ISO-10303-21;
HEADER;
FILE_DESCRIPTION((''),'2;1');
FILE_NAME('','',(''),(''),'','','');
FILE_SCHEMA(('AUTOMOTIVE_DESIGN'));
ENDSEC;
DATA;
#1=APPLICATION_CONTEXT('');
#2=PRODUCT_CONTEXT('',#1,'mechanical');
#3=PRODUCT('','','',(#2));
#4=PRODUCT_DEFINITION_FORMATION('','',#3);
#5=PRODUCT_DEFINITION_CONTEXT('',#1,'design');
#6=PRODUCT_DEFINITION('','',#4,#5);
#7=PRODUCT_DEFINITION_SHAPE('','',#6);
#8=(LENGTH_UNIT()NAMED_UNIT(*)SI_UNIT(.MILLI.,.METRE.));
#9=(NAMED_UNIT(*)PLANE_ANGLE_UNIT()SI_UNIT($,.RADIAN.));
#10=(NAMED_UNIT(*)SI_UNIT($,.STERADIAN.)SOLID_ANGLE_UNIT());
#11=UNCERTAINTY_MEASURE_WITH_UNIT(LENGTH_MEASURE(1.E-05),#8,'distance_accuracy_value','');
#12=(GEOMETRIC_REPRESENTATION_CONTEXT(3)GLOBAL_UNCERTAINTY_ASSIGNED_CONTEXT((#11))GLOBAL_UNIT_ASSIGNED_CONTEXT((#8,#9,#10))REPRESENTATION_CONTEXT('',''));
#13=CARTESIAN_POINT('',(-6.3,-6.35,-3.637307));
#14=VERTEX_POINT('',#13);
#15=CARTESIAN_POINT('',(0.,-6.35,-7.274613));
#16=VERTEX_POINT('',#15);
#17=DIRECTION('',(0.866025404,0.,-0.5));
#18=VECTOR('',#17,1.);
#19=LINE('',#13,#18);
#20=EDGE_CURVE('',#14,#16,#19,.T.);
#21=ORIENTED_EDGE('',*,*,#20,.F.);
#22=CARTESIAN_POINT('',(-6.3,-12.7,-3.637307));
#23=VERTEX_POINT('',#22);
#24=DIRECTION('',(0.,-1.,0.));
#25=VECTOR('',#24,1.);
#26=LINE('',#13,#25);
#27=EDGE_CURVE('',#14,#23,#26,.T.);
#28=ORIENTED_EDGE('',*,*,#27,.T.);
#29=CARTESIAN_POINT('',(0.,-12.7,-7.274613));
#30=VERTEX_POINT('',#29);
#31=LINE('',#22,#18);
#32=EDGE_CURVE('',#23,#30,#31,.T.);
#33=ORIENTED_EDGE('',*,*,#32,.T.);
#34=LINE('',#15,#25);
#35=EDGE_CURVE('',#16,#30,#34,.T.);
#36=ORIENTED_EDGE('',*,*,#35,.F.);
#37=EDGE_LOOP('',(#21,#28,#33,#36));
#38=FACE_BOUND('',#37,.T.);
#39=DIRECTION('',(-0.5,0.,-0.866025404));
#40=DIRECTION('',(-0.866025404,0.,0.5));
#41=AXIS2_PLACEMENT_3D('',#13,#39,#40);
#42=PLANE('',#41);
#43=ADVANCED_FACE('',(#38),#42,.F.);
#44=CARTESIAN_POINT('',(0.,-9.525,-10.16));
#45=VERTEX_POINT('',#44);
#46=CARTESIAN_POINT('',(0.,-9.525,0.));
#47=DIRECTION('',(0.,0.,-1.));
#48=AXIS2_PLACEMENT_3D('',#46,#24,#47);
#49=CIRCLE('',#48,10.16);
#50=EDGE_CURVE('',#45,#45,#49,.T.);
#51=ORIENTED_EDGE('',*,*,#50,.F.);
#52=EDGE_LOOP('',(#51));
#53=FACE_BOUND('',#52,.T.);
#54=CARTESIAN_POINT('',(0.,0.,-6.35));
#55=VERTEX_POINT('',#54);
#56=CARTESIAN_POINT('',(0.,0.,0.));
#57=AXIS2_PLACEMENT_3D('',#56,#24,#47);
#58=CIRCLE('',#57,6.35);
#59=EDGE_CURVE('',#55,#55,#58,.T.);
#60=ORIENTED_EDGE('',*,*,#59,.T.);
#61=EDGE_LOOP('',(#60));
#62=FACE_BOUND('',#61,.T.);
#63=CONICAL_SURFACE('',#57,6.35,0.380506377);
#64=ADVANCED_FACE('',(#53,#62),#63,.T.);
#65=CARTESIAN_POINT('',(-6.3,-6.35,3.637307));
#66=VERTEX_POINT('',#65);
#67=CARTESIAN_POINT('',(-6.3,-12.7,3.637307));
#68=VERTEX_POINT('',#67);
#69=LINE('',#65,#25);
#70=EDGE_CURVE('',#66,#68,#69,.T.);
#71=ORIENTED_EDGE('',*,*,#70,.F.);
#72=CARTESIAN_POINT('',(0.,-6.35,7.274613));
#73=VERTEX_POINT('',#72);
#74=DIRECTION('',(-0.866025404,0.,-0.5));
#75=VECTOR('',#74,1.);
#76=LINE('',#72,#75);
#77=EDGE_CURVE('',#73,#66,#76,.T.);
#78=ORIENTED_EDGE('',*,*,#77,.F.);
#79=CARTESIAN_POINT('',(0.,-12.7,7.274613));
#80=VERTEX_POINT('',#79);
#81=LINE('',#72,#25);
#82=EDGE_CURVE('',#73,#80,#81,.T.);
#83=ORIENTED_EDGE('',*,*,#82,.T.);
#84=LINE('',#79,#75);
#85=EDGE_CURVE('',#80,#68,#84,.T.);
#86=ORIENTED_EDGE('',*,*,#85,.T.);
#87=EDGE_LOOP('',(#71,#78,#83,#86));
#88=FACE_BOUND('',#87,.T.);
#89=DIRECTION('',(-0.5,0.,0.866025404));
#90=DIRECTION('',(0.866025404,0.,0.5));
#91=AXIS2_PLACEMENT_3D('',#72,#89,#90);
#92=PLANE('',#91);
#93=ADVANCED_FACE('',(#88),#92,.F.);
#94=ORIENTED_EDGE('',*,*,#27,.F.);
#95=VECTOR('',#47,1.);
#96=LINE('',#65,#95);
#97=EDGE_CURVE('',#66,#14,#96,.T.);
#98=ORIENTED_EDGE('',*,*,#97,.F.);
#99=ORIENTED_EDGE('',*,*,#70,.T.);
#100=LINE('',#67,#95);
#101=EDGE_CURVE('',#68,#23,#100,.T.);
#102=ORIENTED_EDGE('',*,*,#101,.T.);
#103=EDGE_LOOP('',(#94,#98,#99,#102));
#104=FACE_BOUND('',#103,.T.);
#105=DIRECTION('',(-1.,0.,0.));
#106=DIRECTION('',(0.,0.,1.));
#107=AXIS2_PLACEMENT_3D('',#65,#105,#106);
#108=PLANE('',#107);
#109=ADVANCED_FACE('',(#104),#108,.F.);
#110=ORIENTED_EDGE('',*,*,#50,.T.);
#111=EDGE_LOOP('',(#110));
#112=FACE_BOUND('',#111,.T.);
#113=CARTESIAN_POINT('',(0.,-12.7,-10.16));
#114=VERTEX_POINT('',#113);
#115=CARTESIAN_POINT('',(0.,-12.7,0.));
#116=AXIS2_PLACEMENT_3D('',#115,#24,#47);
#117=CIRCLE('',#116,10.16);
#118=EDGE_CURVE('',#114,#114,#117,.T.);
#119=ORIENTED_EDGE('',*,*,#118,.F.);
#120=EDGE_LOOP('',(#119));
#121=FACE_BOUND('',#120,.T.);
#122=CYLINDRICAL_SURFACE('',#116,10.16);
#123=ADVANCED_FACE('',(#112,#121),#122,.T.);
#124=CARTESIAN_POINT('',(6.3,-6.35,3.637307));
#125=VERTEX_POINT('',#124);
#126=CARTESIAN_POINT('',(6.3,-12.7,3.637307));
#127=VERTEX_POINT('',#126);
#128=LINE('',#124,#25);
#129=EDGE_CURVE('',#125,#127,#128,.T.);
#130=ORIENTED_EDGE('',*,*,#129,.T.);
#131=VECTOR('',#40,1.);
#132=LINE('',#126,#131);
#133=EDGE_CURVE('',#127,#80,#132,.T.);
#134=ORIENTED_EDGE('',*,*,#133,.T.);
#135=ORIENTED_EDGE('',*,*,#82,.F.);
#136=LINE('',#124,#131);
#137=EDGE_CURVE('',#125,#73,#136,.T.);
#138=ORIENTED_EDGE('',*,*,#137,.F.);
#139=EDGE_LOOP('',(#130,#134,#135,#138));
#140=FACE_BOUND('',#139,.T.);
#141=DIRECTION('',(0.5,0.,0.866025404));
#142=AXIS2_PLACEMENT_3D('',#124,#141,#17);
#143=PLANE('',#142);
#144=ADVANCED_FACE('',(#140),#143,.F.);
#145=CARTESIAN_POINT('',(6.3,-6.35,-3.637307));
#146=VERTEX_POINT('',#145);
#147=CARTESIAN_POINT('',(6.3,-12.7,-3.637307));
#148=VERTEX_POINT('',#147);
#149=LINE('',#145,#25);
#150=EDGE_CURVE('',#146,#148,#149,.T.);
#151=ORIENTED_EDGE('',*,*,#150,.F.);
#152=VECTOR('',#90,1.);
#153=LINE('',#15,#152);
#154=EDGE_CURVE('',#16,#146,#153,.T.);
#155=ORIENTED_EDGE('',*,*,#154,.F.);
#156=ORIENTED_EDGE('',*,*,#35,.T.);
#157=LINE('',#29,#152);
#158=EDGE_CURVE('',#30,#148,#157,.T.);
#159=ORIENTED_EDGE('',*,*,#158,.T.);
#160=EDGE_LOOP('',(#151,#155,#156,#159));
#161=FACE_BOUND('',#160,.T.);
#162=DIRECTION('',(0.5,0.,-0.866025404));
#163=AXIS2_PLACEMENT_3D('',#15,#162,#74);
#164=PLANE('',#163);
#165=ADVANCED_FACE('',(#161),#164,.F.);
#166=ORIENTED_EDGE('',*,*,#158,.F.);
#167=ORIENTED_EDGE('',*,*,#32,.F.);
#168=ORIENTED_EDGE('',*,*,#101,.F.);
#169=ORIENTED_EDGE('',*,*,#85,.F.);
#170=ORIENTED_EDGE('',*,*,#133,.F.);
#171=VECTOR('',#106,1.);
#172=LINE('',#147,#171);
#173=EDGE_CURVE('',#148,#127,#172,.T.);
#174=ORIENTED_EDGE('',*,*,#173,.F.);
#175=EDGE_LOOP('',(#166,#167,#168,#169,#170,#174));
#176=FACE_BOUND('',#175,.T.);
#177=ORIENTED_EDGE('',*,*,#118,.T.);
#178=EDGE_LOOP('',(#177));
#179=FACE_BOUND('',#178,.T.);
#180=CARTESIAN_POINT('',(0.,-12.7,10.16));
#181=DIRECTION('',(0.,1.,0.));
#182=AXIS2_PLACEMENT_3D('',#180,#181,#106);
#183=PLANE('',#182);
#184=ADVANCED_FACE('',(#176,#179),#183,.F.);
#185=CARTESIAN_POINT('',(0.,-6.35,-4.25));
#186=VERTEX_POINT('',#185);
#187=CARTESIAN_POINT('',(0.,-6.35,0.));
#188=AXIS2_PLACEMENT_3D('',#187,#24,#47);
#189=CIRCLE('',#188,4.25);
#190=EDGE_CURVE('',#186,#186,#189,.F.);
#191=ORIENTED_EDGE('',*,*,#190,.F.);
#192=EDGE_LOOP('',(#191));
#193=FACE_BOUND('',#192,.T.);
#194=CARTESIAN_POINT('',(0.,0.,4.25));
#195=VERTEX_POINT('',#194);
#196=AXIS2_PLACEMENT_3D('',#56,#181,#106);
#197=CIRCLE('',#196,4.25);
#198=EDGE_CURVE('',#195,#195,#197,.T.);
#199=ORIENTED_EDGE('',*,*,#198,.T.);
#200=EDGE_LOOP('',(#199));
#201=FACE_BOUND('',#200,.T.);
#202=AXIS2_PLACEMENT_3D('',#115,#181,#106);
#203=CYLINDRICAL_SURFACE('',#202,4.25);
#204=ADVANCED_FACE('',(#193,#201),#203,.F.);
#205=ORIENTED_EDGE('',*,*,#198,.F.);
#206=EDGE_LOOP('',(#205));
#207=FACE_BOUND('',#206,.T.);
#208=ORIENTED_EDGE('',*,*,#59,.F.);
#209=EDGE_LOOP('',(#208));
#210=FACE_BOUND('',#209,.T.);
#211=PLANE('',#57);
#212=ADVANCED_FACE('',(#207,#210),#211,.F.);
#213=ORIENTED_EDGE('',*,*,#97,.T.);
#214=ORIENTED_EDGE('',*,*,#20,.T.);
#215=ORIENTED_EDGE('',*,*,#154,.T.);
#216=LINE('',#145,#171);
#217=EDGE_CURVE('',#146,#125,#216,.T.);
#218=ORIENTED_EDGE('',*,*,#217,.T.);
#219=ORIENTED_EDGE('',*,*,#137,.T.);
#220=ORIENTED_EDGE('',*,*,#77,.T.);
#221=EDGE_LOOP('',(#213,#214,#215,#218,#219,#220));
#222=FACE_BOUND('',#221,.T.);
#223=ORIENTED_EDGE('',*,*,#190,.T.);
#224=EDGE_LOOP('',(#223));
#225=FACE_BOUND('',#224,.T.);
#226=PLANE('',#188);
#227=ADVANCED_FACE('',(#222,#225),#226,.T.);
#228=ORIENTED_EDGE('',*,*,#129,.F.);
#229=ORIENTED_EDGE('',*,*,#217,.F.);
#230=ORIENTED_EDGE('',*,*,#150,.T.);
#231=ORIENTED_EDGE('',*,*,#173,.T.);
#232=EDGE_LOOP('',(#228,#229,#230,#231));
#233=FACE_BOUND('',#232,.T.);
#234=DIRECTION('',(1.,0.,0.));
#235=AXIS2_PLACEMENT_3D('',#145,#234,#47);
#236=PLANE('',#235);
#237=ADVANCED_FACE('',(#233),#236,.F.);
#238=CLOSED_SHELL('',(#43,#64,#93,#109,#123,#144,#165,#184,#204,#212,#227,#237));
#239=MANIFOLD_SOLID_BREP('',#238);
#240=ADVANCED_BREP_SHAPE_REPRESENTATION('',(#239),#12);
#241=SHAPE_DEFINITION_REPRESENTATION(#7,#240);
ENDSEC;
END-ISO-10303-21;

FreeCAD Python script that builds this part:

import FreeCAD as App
import Part
import Sketcher
Q = App.Units.Quantity

doc = App.newDocument("Part")
params = doc.addObject("Spreadsheet::Sheet", "Params")
for row, (alias, value) in enumerate([
    ("sketch1_width", "0.5 in"),
    ("sketch1_height", "0.4 in"),
    ("sketch1_height2", "0.25 in"),
    ("sketch1_width2", "0.125 in"),
    ("revolution_angle", "360 deg"),
    ("pocket2_length", "0.25 in"),
], start=1):
    params.set(f"A{row}", alias)
    params.set(f"B{row}", "=" + value)
    params.setAlias(f"B{row}", alias)

body = doc.addObject("PartDesign::Body", "Body")

sketch1 = body.newObject("Sketcher::SketchObject", "Sketch")
sketch1.AttachmentSupport = (doc.getObject("YZ_Plane"), [""])
sketch1.MapMode = "FlatFace"
sketch1.addGeometry(Part.LineSegment(App.Vector(0, 0, 0), App.Vector(0, 6.3, 0)), False)
sketch1.addGeometry(Part.LineSegment(App.Vector(0, 6.3, 0), App.Vector(-9.5, 10.2, 0)), False)
sketch1.addGeometry(Part.LineSegment(App.Vector(-9.5, 10.2, 0), App.Vector(-12.7, 10.2, 0)), False)
sketch1.addGeometry(Part.LineSegment(App.Vector(-12.7, 10.2, 0), App.Vector(-12.7, 0, 0)), False)
sketch1.addGeometry(Part.LineSegment(App.Vector(-12.7, 0, 0), App.Vector(0, 0, 0)), False)
sketch1.addConstraint(Sketcher.Constraint("Coincident", 0, 2, 1, 1))
sketch1.addConstraint(Sketcher.Constraint("Coincident", 1, 2, 2, 1))
sketch1.addConstraint(Sketcher.Constraint("Coincident", 2, 2, 3, 1))
sketch1.addConstraint(Sketcher.Constraint("Coincident", 3, 2, 4, 1))
sketch1.addConstraint(Sketcher.Constraint("Coincident", 4, 2, 0, 1))
sketch1.addConstraint(Sketcher.Constraint("Vertical", 0))
sketch1.addConstraint(Sketcher.Constraint("Horizontal", 2))
sketch1.addConstraint(Sketcher.Constraint("Vertical", 3))
sketch1.addConstraint(Sketcher.Constraint("Horizontal", 4))
sketch1.addConstraint(Sketcher.Constraint("Coincident", 4, 2, -1, 1))
sketch1.addConstraint(Sketcher.Constraint("DistanceX", 4, 1, 4, 2, Q("0.5 in")))
sketch1.addConstraint(Sketcher.Constraint("DistanceY", 3, 2, 3, 1, Q("0.4 in")))
sketch1.addConstraint(Sketcher.Constraint("DistanceY", 0, 1, 0, 2, Q("0.25 in")))
sketch1.addConstraint(Sketcher.Constraint("DistanceX", 2, 2, 2, 1, Q("0.125 in")))
sketch1.setExpression("Constraints[10]", "Params.sketch1_width")
sketch1.setExpression("Constraints[11]", "Params.sketch1_height")
sketch1.setExpression("Constraints[12]", "Params.sketch1_height2")
sketch1.setExpression("Constraints[13]", "Params.sketch1_width2")
revolution = body.newObject("PartDesign::Revolution", "Revolution")
revolution.Profile = sketch1
revolution.ReferenceAxis = (sketch1, ["H_Axis"])
revolution.setExpression("Angle", "Params.revolution_angle")

sketch2 = body.newObject("Sketcher::SketchObject", "Sketch001")
sketch2.AttachmentSupport = (doc.getObject("XZ_Plane"), [""])
sketch2.MapMode = "FlatFace"
sketch2.addGeometry(Part.Circle(App.Vector(0, 0, 0), App.Vector(0, 0, 1), 4.2), False)
sketch2.addConstraint(Sketcher.Constraint("Coincident", 0, 3, -1, 1))
sketch2.addConstraint(Sketcher.Constraint("Diameter", 0, Q("8.5 mm")))
pocket1 = body.newObject("PartDesign::Pocket", "Pocket")
pocket1.Profile = sketch2
pocket1.Type = "ThroughAll"
pocket1.Reversed = True

sketch3 = body.newObject("Sketcher::SketchObject", "Sketch002")
sketch3.AttachmentSupport = (doc.getObject("XZ_Plane"), [""])
sketch3.MapMode = "FlatFace"
sketch3.AttachmentOffset = App.Placement(App.Vector(0, 0, 0.5 * 25.4), App.Rotation())
sketch3.addGeometry(Part.LineSegment(App.Vector(0, 7, 0), App.Vector(-6, 4, 0)), False)
sketch3.addGeometry(Part.LineSegment(App.Vector(-6, 4, 0), App.Vector(-6, -4, 0)), False)
sketch3.addGeometry(Part.LineSegment(App.Vector(-6, -4, 0), App.Vector(0, -7, 0)), False)
sketch3.addGeometry(Part.LineSegment(App.Vector(0, -7, 0), App.Vector(6, -4, 0)), False)
sketch3.addGeometry(Part.LineSegment(App.Vector(6, -4, 0), App.Vector(6, 4, 0)), False)
sketch3.addGeometry(Part.LineSegment(App.Vector(6, 4, 0), App.Vector(0, 7, 0)), False)
sketch3.addConstraint(Sketcher.Constraint("Coincident", 0, 2, 1, 1))
sketch3.addConstraint(Sketcher.Constraint("Coincident", 1, 2, 2, 1))
sketch3.addConstraint(Sketcher.Constraint("Coincident", 2, 2, 3, 1))
sketch3.addConstraint(Sketcher.Constraint("Coincident", 3, 2, 4, 1))
sketch3.addConstraint(Sketcher.Constraint("Coincident", 4, 2, 5, 1))
sketch3.addConstraint(Sketcher.Constraint("Coincident", 5, 2, 0, 1))
sketch3.addConstraint(Sketcher.Constraint("Vertical", 1))
sketch3.addConstraint(Sketcher.Constraint("Vertical", 4))
sketch3.addConstraint(Sketcher.Constraint("Symmetric", 0, 2, 3, 2, -1, 1))
sketch3.addConstraint(Sketcher.Constraint("Symmetric", 2, 2, 5, 2, -1, 1))
sketch3.addConstraint(Sketcher.Constraint("PointOnObject", 2, 2, -2))
sketch3.addConstraint(Sketcher.Constraint("Parallel", 2, 5))
sketch3.addConstraint(Sketcher.Constraint("Horizontal", 1, 2, 3, 2))
sketch3.addConstraint(Sketcher.Constraint("Angle", 0, Q("-150 deg")))
sketch3.addConstraint(Sketcher.Constraint("DistanceX", 0, 2, -1, 1, Q("6.3 mm")))
sketch3.addConstraint(Sketcher.Constraint("DistanceY", 1, 2, 1, 1, Q("7.274613 mm")))
pocket2 = body.newObject("PartDesign::Pocket", "Pocket001")
pocket2.Profile = sketch3
pocket2.setExpression("Length", "Params.pocket2_length")

doc.recompute()
